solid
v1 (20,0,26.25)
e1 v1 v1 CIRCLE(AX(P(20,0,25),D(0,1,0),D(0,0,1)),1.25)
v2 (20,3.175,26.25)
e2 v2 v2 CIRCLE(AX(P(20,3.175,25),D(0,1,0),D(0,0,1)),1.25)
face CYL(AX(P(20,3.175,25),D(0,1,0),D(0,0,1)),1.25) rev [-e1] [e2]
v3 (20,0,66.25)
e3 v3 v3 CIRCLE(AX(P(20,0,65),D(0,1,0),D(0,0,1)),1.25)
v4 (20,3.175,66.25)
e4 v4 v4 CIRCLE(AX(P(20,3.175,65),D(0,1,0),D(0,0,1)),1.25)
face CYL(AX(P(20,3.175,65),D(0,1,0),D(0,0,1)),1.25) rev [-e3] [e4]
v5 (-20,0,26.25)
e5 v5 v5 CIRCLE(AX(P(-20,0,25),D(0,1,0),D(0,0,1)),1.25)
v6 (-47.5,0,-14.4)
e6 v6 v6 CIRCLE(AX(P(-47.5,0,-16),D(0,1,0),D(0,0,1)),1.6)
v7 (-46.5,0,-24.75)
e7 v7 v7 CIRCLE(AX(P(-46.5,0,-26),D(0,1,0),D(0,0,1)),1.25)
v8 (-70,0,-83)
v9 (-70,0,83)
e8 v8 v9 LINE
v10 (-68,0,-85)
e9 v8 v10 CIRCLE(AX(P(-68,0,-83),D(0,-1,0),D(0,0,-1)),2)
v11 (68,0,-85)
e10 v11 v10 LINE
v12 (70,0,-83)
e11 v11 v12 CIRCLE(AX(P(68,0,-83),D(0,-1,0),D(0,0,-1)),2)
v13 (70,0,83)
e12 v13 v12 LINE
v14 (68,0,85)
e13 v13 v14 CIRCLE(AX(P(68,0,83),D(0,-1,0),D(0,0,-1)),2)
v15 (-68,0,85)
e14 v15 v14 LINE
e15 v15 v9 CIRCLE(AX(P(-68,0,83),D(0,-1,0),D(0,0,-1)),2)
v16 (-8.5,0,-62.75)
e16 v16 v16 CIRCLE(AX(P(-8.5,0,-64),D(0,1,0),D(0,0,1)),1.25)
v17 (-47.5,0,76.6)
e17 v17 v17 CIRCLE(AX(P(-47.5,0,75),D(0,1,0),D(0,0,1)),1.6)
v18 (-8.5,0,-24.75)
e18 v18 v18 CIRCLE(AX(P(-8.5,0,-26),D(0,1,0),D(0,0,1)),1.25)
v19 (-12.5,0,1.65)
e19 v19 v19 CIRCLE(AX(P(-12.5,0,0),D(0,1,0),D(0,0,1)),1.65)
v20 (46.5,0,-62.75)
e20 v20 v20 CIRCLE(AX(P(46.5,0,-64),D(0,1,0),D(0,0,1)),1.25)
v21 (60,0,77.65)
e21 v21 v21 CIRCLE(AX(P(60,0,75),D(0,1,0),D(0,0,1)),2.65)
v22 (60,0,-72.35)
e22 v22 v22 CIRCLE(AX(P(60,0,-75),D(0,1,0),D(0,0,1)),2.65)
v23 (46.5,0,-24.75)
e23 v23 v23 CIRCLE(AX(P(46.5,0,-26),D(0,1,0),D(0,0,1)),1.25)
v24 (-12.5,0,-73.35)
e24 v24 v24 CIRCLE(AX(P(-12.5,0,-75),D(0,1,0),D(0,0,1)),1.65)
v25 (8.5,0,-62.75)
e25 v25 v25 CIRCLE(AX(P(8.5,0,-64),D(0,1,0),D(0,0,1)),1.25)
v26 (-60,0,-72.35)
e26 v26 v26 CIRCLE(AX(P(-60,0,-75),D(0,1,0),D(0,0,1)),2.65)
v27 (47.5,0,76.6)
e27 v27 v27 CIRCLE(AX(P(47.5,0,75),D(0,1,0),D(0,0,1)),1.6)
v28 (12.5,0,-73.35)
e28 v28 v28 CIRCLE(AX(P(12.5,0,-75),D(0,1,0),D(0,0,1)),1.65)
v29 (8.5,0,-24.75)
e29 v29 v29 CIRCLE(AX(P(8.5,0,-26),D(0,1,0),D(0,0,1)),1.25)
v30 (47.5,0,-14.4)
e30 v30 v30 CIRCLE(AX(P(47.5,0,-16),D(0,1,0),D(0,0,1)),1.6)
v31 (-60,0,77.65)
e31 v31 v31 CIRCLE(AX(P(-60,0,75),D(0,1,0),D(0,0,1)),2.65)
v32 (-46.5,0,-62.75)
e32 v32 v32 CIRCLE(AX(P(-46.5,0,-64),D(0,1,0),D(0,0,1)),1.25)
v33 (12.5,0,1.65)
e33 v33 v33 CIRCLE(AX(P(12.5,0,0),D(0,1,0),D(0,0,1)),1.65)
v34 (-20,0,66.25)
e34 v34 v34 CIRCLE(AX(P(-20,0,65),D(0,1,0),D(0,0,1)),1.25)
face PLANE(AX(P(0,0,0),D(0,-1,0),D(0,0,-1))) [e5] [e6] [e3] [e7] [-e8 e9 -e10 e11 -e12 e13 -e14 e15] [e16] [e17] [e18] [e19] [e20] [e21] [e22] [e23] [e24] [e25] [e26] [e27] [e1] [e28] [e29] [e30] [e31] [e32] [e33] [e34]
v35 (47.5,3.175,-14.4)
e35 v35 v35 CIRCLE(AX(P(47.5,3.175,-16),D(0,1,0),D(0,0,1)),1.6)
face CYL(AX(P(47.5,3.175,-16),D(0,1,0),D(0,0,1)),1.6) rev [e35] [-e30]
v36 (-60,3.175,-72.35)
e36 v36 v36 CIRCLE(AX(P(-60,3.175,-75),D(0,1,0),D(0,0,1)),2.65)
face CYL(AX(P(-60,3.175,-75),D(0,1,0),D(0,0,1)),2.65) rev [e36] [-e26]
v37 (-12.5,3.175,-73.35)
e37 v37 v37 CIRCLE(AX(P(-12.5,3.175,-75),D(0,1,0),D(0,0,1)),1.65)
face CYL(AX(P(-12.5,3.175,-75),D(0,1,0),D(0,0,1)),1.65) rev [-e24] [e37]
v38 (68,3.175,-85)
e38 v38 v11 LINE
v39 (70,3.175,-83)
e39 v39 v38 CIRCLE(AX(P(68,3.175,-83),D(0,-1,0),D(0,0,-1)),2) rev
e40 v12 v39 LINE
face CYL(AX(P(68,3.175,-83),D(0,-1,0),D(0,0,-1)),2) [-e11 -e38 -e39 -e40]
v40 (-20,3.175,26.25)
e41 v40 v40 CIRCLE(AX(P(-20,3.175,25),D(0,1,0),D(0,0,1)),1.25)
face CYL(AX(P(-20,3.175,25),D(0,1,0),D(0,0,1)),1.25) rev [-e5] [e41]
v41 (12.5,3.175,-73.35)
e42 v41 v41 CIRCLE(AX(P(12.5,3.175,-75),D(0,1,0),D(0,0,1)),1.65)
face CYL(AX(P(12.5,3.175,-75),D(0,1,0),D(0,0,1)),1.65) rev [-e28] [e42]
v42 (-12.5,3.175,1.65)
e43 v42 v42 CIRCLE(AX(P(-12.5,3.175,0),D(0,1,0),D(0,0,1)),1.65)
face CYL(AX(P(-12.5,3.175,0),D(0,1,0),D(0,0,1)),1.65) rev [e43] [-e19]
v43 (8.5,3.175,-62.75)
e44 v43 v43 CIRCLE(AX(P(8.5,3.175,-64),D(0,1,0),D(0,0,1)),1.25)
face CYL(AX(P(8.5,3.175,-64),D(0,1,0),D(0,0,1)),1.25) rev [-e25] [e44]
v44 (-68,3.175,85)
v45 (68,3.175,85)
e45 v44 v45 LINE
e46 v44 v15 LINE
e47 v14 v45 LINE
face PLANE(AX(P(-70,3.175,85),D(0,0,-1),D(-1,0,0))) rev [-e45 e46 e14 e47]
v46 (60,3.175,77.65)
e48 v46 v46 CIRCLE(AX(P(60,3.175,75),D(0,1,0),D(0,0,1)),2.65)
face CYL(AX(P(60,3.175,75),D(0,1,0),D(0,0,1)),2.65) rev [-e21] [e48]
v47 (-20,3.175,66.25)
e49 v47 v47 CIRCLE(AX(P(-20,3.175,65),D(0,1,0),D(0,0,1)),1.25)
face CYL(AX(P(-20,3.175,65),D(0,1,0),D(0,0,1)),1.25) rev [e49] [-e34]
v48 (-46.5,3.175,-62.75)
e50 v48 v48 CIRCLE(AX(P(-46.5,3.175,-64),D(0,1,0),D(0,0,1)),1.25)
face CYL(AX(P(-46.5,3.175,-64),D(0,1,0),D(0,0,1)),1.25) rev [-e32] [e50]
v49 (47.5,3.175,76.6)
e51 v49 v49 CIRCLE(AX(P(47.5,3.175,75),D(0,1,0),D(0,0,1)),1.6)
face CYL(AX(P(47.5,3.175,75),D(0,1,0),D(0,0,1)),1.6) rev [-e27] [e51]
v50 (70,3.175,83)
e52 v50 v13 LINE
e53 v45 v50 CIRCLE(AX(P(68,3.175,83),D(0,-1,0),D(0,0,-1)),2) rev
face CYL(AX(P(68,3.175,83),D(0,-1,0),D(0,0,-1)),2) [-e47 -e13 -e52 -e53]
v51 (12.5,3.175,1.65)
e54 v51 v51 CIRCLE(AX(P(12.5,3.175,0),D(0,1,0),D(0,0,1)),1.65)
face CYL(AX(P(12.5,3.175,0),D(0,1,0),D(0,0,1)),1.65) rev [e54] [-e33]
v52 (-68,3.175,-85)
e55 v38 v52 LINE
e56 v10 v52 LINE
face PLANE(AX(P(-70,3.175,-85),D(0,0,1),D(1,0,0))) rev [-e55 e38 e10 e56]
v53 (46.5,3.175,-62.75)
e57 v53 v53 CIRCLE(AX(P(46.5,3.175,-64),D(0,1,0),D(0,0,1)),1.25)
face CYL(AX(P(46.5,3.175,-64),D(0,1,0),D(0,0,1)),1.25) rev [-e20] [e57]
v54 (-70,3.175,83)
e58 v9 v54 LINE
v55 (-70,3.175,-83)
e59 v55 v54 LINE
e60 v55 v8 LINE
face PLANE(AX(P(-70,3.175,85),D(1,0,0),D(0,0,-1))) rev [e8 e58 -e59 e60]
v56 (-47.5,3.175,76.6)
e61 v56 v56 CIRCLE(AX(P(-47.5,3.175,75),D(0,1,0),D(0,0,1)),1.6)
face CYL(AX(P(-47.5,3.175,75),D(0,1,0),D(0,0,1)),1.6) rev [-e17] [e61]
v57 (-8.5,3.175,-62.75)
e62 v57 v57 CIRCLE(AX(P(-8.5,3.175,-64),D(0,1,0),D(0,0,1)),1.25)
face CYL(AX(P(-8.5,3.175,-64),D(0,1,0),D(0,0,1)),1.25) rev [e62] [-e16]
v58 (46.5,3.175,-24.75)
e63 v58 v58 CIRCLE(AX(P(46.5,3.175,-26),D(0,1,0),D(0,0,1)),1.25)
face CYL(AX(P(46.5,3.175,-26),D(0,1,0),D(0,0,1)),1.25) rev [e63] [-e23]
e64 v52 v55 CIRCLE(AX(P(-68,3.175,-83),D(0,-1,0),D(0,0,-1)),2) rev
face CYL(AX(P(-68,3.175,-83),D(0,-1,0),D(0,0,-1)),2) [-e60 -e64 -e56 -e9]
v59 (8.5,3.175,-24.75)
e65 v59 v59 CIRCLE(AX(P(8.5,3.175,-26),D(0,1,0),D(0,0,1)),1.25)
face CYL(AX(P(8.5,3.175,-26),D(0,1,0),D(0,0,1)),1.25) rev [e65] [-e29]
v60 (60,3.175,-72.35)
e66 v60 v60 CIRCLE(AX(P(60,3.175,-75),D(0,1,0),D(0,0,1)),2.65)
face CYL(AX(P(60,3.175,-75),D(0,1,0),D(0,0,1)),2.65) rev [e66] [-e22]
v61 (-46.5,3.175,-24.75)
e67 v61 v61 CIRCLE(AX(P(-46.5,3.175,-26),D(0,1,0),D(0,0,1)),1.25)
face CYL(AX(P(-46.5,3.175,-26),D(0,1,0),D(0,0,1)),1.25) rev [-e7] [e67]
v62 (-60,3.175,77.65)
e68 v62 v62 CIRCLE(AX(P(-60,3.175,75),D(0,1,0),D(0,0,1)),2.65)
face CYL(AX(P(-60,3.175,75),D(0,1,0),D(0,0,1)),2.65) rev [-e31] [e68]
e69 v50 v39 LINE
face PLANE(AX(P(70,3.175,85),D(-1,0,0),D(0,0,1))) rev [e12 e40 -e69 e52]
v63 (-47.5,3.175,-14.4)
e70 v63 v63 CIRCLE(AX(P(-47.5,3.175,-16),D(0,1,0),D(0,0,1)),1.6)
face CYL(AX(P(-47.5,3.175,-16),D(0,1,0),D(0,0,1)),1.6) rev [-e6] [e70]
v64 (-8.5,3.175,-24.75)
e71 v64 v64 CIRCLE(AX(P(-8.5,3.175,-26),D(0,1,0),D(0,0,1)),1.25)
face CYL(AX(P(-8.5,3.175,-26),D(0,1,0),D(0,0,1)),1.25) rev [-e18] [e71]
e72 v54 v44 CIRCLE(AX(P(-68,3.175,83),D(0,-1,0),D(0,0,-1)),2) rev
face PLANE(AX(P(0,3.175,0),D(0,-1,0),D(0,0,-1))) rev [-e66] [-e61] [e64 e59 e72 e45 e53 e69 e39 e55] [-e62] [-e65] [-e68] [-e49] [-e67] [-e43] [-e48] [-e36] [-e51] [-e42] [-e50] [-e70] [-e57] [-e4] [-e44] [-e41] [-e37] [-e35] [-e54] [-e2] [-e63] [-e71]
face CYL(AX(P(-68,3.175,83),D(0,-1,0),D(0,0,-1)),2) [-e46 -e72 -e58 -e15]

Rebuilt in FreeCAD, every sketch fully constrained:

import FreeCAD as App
import Part
import Sketcher
Q = App.Units.Quantity


def edges_at(feature, points):
    """Names of the edges that pass closest to the given points."""
    edges = feature.Shape.Edges
    near = lambda p: min(range(len(edges)), key=lambda i: edges[i].distToShape(Part.Vertex(*p))[0])
    return sorted({f"Edge{near(p) + 1}" for p in points})


def add_polygon(sketch, points):
    """Adds a closed chain of lines whose ends are joined by coincident constraints."""
    first, n = sketch.GeometryCount, len(points)
    for a, b in zip(points, points[1:] + points[:1]):
        sketch.addGeometry(Part.LineSegment(App.Vector(*a, 0), App.Vector(*b, 0)), False)
    for i in range(n):
        sketch.addConstraint(Sketcher.Constraint("Coincident", first + i, 2, first + (i + 1) % n, 1))

doc = App.newDocument("Part")
params = doc.addObject("Spreadsheet::Sheet", "Params")
for row, (alias, value) in enumerate([
    ("sketch1_width", "140 mm"),
    ("sketch1_height", "170 mm"),
    ("pad1_length", "3.175 mm"),
    ("sketch2_diameter", "2.5 mm"),
    ("hole_diameter", "2.5 mm"),
    ("sketch3_diameter", "3.2 mm"),
    ("hole2_diameter", "3.2 mm"),
    ("sketch4_diameter", "3.3 mm"),
    ("hole3_diameter", "3.3 mm"),
    ("sketch5_diameter", "5.3 mm"),
    ("hole4_diameter", "5.3 mm"),
    ("fillet_radius", "2 mm"),
], start=1):
    params.set(f"A{row}", alias)
    params.set(f"B{row}", "=" + value)
    params.setAlias(f"B{row}", alias)

body = doc.addObject("PartDesign::Body", "Body")

# Sketch on XZ plane
sketch1 = body.newObject("Sketcher::SketchObject", "Sketch")
sketch1.AttachmentSupport = (doc.getObject("XZ_Plane"), [""])
sketch1.MapMode = "FlatFace"
add_polygon(sketch1, [(-70, -85), (-70, 85), (70, 85), (70, -85)])  # lines 0-3
sketch1.addConstraint(Sketcher.Constraint("Vertical", 0))
sketch1.addConstraint(Sketcher.Constraint("Horizontal", 1))
sketch1.addConstraint(Sketcher.Constraint("Vertical", 2))
sketch1.addConstraint(Sketcher.Constraint("Horizontal", 3))
sketch1.addConstraint(Sketcher.Constraint("Symmetric", 0, 2, 2, 2, -1, 1))
sketch1.addConstraint(Sketcher.Constraint("DistanceX", 1, 1, 1, 2, Q("140 mm")))
sketch1.addConstraint(Sketcher.Constraint("DistanceY", 0, 1, 0, 2, Q("170 mm")))
sketch1.setExpression("Constraints[9]", "Params.sketch1_width")
sketch1.setExpression("Constraints[10]", "Params.sketch1_height")
pad1 = body.newObject("PartDesign::Pad", "Pad")
pad1.Profile = sketch1
pad1.setExpression("Length", "Params.pad1_length")
pad1.Reversed = True

# Sketch on XZ plane
sketch2 = body.newObject("Sketcher::SketchObject", "Sketch001")
sketch2.AttachmentSupport = (doc.getObject("XZ_Plane"), [""])
sketch2.MapMode = "FlatFace"
sketch2.AttachmentOffset = App.Placement(App.Vector(0, 0, -3.175), App.Rotation())
sketch2.addGeometry(Part.Circle(App.Vector(-46.5, -64, 0), App.Vector(0, 0, 1), 1.2), False)
sketch2.addGeometry(Part.Circle(App.Vector(-46.5, -26, 0), App.Vector(0, 0, 1), 1.2), False)
sketch2.addGeometry(Part.Circle(App.Vector(-8.5, -26, 0), App.Vector(0, 0, 1), 1.2), False)
sketch2.addGeometry(Part.Circle(App.Vector(-8.5, -64, 0), App.Vector(0, 0, 1), 1.2), False)
sketch2.addGeometry(Part.Circle(App.Vector(8.5, -64, 0), App.Vector(0, 0, 1), 1.2), False)
sketch2.addGeometry(Part.Circle(App.Vector(46.5, -64, 0), App.Vector(0, 0, 1), 1.2), False)
sketch2.addGeometry(Part.Circle(App.Vector(8.5, -26, 0), App.Vector(0, 0, 1), 1.2), False)
sketch2.addGeometry(Part.Circle(App.Vector(46.5, -26, 0), App.Vector(0, 0, 1), 1.2), False)
sketch2.addGeometry(Part.Circle(App.Vector(-20, 25, 0), App.Vector(0, 0, 1), 1.2), False)
sketch2.addGeometry(Part.Circle(App.Vector(20, 25, 0), App.Vector(0, 0, 1), 1.2), False)
sketch2.addGeometry(Part.Circle(App.Vector(-20, 65, 0), App.Vector(0, 0, 1), 1.2), False)
sketch2.addGeometry(Part.Circle(App.Vector(20, 65, 0), App.Vector(0, 0, 1), 1.2), False)
sketch2.addConstraint(Sketcher.Constraint("Equal", 0, 1))
sketch2.addConstraint(Sketcher.Constraint("Equal", 1, 2))
sketch2.addConstraint(Sketcher.Constraint("Equal", 2, 3))
sketch2.addConstraint(Sketcher.Constraint("Equal", 3, 4))
sketch2.addConstraint(Sketcher.Constraint("Equal", 4, 5))
sketch2.addConstraint(Sketcher.Constraint("Equal", 5, 6))
sketch2.addConstraint(Sketcher.Constraint("Equal", 6, 7))
sketch2.addConstraint(Sketcher.Constraint("Equal", 7, 8))
sketch2.addConstraint(Sketcher.Constraint("Equal", 8, 9))
sketch2.addConstraint(Sketcher.Constraint("Equal", 9, 10))
sketch2.addConstraint(Sketcher.Constraint("Equal", 10, 11))
sketch2.addConstraint(Sketcher.Constraint("Symmetric", 3, 3, 4, 3, -2))
sketch2.addConstraint(Sketcher.Constraint("Symmetric", 0, 3, 5, 3, -2))
sketch2.addConstraint(Sketcher.Constraint("Symmetric", 2, 3, 6, 3, -2))
sketch2.addConstraint(Sketcher.Constraint("Symmetric", 1, 3, 7, 3, -2))
sketch2.addConstraint(Sketcher.Constraint("Symmetric", 8, 3, 9, 3, -2))
sketch2.addConstraint(Sketcher.Constraint("Symmetric", 10, 3, 11, 3, -2))
sketch2.addConstraint(Sketcher.Constraint("Horizontal", 1, 3, 2, 3))
sketch2.addConstraint(Sketcher.Constraint("Horizontal", 0, 3, 3, 3))
sketch2.addConstraint(Sketcher.Constraint("Vertical", 0, 3, 1, 3))
sketch2.addConstraint(Sketcher.Constraint("Vertical", 2, 3, 3, 3))
sketch2.addConstraint(Sketcher.Constraint("Vertical", 8, 3, 10, 3))
sketch2.addConstraint(Sketcher.Constraint("Diameter", 0, Q("2.5 mm")))
sketch2.addConstraint(Sketcher.Constraint("DistanceY", 0, 3, -1, 1, Q("64 mm")))
sketch2.addConstraint(Sketcher.Constraint("DistanceY", 1, 3, -1, 1, Q("26 mm")))
sketch2.addConstraint(Sketcher.Constraint("DistanceX", 8, 3, -1, 1, Q("20 mm")))
sketch2.addConstraint(Sketcher.Constraint("DistanceY", -1, 1, 8, 3, Q("25 mm")))
sketch2.addConstraint(Sketcher.Constraint("DistanceY", -1, 1, 10, 3, Q("65 mm")))
sketch2.addConstraint(Sketcher.Constraint("DistanceX", 1, 3, 2, 3, Q("38 mm")))
sketch2.addConstraint(Sketcher.Constraint("DistanceX", 3, 3, 4, 3, Q("17 mm")))
sketch2.setExpression("Constraints[22]", "Params.sketch2_diameter")
doc.recompute()
hole = body.newObject("PartDesign::Hole", "Hole")
hole.Profile = sketch2
hole.ThreadType = "None"
hole.setExpression("Diameter", "Params.hole_diameter")
hole.DepthType = "ThroughAll"
hole.Reversed = True

# Sketch on XZ plane
sketch3 = body.newObject("Sketcher::SketchObject", "Sketch002")
sketch3.AttachmentSupport = (doc.getObject("XZ_Plane"), [""])
sketch3.MapMode = "FlatFace"
sketch3.AttachmentOffset = App.Placement(App.Vector(0, 0, -3.175), App.Rotation())
sketch3.addGeometry(Part.Circle(App.Vector(-47.5, -16, 0), App.Vector(0, 0, 1), 1.6), False)
sketch3.addGeometry(Part.Circle(App.Vector(47.5, -16, 0), App.Vector(0, 0, 1), 1.6), False)
sketch3.addGeometry(Part.Circle(App.Vector(47.5, 75, 0), App.Vector(0, 0, 1), 1.6), False)
sketch3.addGeometry(Part.Circle(App.Vector(-47.5, 75, 0), App.Vector(0, 0, 1), 1.6), False)
sketch3.addConstraint(Sketcher.Constraint("Equal", 0, 1))
sketch3.addConstraint(Sketcher.Constraint("Equal", 1, 2))
sketch3.addConstraint(Sketcher.Constraint("Equal", 2, 3))
sketch3.addConstraint(Sketcher.Constraint("Symmetric", 0, 3, 1, 3, -2))
sketch3.addConstraint(Sketcher.Constraint("Symmetric", 2, 3, 3, 3, -2))
sketch3.addConstraint(Sketcher.Constraint("Vertical", 1, 3, 2, 3))
sketch3.addConstraint(Sketcher.Constraint("Diameter", 0, Q("3.2 mm")))
sketch3.addConstraint(Sketcher.Constraint("DistanceY", 0, 3, -1, 1, Q("16 mm")))
sketch3.addConstraint(Sketcher.Constraint("DistanceY", -1, 1, 2, 3, Q("75 mm")))
sketch3.addConstraint(Sketcher.Constraint("DistanceX", 0, 3, 1, 3, Q("95 mm")))
sketch3.setExpression("Constraints[6]", "Params.sketch3_diameter")
doc.recompute()
hole2 = body.newObject("PartDesign::Hole", "Hole001")
hole2.Profile = sketch3
hole2.ThreadType = "None"
hole2.setExpression("Diameter", "Params.hole2_diameter")
hole2.DepthType = "ThroughAll"
hole2.Reversed = True

# Sketch on XZ plane
sketch4 = body.newObject("Sketcher::SketchObject", "Sketch003")
sketch4.AttachmentSupport = (doc.getObject("XZ_Plane"), [""])
sketch4.MapMode = "FlatFace"
sketch4.AttachmentOffset = App.Placement(App.Vector(0, 0, -3.175), App.Rotation())
sketch4.addGeometry(Part.Circle(App.Vector(-12.5, -75, 0), App.Vector(0, 0, 1), 1.6), False)
sketch4.addGeometry(Part.Circle(App.Vector(12.5, -75, 0), App.Vector(0, 0, 1), 1.6), False)
sketch4.addGeometry(Part.Circle(App.Vector(-12.5, 0, 0), App.Vector(0, 0, 1), 1.6), False)
sketch4.addGeometry(Part.Circle(App.Vector(12.5, 0, 0), App.Vector(0, 0, 1), 1.6), False)
sketch4.addConstraint(Sketcher.Constraint("Equal", 0, 1))
sketch4.addConstraint(Sketcher.Constraint("Equal", 1, 2))
sketch4.addConstraint(Sketcher.Constraint("Equal", 2, 3))
sketch4.addConstraint(Sketcher.Constraint("Symmetric", 2, 3, 3, 3, -1, 1))
sketch4.addConstraint(Sketcher.Constraint("Symmetric", 0, 3, 1, 3, -2))
sketch4.addConstraint(Sketcher.Constraint("PointOnObject", 2, 3, -1))
sketch4.addConstraint(Sketcher.Constraint("Vertical", 0, 3, 2, 3))
sketch4.addConstraint(Sketcher.Constraint("Diameter", 0, Q("3.3 mm")))
sketch4.addConstraint(Sketcher.Constraint("DistanceY", 0, 3, -1, 1, Q("75 mm")))
sketch4.addConstraint(Sketcher.Constraint("DistanceX", 0, 3, 1, 3, Q("25 mm")))
sketch4.setExpression("Constraints[7]", "Params.sketch4_diameter")
doc.recompute()
hole3 = body.newObject("PartDesign::Hole", "Hole002")
hole3.Profile = sketch4
hole3.ThreadType = "None"
hole3.setExpression("Diameter", "Params.hole3_diameter")
hole3.DepthType = "ThroughAll"
hole3.Reversed = True

# Sketch on XZ plane
sketch5 = body.newObject("Sketcher::SketchObject", "Sketch004")
sketch5.AttachmentSupport = (doc.getObject("XZ_Plane"), [""])
sketch5.MapMode = "FlatFace"
sketch5.AttachmentOffset = App.Placement(App.Vector(0, 0, -3.175), App.Rotation())
sketch5.addGeometry(Part.Circle(App.Vector(-60, -75, 0), App.Vector(0, 0, 1), 2.6), False)
sketch5.addGeometry(Part.Circle(App.Vector(60, -75, 0), App.Vector(0, 0, 1), 2.6), False)
sketch5.addGeometry(Part.Circle(App.Vector(-60, 75, 0), App.Vector(0, 0, 1), 2.6), False)
sketch5.addGeometry(Part.Circle(App.Vector(60, 75, 0), App.Vector(0, 0, 1), 2.6), False)
sketch5.addConstraint(Sketcher.Constraint("Equal", 0, 1))
sketch5.addConstraint(Sketcher.Constraint("Equal", 1, 2))
sketch5.addConstraint(Sketcher.Constraint("Equal", 2, 3))
sketch5.addConstraint(Sketcher.Constraint("Symmetric", 1, 3, 2, 3, -1, 1))
sketch5.addConstraint(Sketcher.Constraint("Symmetric", 0, 3, 3, 3, -1, 1))
sketch5.addConstraint(Sketcher.Constraint("Symmetric", 0, 3, 1, 3, -2))
sketch5.addConstraint(Sketcher.Constraint("Diameter", 0, Q("5.3 mm")))
sketch5.addConstraint(Sketcher.Constraint("DistanceX", 0, 3, -1, 1, Q("60 mm")))
sketch5.addConstraint(Sketcher.Constraint("DistanceY", 0, 3, -1, 1, Q("75 mm")))
sketch5.setExpression("Constraints[6]", "Params.sketch5_diameter")
doc.recompute()
hole4 = body.newObject("PartDesign::Hole", "Hole003")
hole4.Profile = sketch5
hole4.ThreadType = "None"
hole4.setExpression("Diameter", "Params.hole4_diameter")
hole4.DepthType = "ThroughAll"
hole4.Reversed = True
doc.recompute()

fillet = body.newObject("PartDesign::Fillet", "Fillet")
fillet.Base = (hole4, edges_at(hole4, [
    (70, 1.587, 85),
    (-70, 1.587, 85),
    (-70, 1.587, -85),
    (70, 1.587, -85),
]))
fillet.setExpression("Radius", "Params.fillet_radius")

doc.recompute()
